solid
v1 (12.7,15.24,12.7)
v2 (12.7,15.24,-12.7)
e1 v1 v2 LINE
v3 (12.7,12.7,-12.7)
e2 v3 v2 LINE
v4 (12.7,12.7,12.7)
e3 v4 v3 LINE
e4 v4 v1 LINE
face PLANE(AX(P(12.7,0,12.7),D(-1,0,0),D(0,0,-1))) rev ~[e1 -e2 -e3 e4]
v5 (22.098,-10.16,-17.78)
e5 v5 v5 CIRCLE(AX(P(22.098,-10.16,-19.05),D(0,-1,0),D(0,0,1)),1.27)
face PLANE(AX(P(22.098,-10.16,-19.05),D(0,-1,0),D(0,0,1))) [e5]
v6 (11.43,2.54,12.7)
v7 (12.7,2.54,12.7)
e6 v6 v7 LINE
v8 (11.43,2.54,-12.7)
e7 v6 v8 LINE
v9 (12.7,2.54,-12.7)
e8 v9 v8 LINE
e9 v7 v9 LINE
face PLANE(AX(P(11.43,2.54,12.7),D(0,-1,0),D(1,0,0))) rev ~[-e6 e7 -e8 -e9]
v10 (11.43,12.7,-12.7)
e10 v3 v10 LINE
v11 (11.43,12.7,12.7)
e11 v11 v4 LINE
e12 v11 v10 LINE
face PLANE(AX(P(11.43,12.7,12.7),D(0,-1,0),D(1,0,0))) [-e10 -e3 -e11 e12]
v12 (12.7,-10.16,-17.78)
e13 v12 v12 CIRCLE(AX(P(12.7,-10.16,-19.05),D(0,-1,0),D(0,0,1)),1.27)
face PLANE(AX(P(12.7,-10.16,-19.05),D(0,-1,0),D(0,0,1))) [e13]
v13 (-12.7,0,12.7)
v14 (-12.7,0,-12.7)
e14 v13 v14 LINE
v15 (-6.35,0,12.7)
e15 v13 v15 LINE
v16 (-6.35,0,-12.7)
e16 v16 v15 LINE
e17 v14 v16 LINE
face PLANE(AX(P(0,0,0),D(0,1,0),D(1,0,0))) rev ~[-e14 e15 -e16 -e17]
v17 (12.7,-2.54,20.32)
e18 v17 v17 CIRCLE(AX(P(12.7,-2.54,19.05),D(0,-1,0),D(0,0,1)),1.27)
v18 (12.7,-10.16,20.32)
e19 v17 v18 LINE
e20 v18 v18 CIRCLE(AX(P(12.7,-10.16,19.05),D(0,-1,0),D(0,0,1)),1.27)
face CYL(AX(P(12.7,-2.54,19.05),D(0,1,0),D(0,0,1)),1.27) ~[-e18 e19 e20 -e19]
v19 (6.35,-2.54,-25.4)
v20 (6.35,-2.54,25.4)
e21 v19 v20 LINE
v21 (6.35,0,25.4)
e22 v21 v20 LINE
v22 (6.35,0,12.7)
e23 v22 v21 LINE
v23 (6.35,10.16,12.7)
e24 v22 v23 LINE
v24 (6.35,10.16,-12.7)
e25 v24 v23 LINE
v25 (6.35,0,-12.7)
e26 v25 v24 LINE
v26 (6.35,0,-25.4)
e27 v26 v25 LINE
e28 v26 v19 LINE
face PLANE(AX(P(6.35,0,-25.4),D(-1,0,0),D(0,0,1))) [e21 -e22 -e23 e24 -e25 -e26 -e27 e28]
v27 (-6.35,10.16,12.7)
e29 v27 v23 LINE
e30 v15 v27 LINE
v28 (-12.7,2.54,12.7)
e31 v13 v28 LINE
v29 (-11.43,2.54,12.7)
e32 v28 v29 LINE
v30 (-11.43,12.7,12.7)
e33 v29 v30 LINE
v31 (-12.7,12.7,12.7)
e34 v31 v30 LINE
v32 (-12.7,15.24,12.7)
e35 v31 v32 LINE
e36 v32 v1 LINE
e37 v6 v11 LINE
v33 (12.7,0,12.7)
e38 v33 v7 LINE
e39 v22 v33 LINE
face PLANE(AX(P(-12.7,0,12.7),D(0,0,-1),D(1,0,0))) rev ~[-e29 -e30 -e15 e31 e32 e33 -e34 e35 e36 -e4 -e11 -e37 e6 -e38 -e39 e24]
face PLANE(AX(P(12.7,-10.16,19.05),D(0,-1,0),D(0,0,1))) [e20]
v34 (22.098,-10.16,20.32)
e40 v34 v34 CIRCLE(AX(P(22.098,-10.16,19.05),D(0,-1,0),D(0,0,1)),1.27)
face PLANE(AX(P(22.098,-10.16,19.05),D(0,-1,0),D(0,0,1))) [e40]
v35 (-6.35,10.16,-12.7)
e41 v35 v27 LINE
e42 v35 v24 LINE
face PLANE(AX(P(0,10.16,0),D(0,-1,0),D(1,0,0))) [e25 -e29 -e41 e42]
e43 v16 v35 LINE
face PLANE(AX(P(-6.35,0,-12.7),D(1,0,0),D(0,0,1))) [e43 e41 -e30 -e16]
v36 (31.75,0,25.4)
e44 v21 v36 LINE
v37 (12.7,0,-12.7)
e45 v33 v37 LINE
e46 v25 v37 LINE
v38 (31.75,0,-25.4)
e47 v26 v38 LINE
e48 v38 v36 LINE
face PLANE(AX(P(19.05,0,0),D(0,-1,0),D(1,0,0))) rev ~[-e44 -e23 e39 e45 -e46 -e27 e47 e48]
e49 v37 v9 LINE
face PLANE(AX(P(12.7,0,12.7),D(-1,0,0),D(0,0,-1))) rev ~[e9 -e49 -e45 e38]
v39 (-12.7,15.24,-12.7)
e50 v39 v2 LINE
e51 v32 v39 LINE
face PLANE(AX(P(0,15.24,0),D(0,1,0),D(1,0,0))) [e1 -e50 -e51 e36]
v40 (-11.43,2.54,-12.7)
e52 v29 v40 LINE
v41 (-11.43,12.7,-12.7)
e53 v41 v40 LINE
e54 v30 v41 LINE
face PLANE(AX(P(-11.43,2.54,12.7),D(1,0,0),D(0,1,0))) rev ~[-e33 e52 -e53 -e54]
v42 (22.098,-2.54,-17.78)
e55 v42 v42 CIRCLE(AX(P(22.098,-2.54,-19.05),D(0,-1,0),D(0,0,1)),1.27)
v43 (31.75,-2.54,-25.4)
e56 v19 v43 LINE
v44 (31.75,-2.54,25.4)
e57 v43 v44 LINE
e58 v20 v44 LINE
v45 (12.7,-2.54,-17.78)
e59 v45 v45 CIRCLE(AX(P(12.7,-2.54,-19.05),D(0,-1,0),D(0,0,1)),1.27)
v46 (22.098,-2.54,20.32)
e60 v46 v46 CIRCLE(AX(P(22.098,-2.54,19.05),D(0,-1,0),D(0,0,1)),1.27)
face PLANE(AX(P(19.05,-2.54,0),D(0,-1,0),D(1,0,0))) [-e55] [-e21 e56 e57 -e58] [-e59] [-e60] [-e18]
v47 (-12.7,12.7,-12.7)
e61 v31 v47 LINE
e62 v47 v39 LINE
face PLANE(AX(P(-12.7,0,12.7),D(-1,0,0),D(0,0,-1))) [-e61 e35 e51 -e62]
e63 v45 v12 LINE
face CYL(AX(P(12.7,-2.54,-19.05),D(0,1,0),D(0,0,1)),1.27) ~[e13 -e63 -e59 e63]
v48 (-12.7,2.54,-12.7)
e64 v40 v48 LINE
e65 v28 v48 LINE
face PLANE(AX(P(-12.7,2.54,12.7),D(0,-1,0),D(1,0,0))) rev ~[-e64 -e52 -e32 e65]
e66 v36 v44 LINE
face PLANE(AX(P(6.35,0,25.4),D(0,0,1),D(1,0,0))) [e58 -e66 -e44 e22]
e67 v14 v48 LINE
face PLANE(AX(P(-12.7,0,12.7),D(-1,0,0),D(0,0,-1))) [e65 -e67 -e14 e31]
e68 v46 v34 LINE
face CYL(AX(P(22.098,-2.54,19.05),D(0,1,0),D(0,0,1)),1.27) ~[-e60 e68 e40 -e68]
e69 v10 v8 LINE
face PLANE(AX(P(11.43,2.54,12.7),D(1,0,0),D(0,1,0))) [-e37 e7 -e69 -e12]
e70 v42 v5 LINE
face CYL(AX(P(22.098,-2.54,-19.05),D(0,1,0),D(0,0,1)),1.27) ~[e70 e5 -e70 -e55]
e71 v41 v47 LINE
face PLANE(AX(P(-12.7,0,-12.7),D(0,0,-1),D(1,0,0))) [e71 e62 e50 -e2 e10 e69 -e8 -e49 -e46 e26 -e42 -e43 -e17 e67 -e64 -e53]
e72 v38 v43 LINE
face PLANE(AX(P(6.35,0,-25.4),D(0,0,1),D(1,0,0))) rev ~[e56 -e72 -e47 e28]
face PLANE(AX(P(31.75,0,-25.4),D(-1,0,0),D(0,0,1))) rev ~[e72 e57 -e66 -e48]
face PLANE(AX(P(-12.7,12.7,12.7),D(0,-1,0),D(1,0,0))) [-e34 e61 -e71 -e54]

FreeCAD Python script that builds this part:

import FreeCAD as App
import Part
import Sketcher
Q = App.Units.Quantity

doc = App.newDocument("Part")
body = doc.addObject("PartDesign::Body", "Body")

# Sketch on XZ plane
sketch1 = body.newObject("Sketcher::SketchObject", "Sketch")
sketch1.AttachmentSupport = (doc.getObject("XZ_Plane"), [""])
sketch1.MapMode = "FlatFace"
sketch1.addGeometry([
    Part.LineSegment(App.Vector(-13, -13, 0), App.Vector(-13, 13, 0)),
    Part.LineSegment(App.Vector(-13, 13, 0), App.Vector(13, 13, 0)),
    Part.LineSegment(App.Vector(13, 13, 0), App.Vector(13, -13, 0)),
    Part.LineSegment(App.Vector(13, -13, 0), App.Vector(-13, -13, 0)),
], False)
sketch1.addConstraint([
    Sketcher.Constraint("Coincident", 0, 2, 1, 1),
    Sketcher.Constraint("Coincident", 1, 2, 2, 1),
    Sketcher.Constraint("Coincident", 2, 2, 3, 1),
    Sketcher.Constraint("Coincident", 3, 2, 0, 1),
    Sketcher.Constraint("Vertical", 0),
    Sketcher.Constraint("Horizontal", 1),
    Sketcher.Constraint("Vertical", 2),
    Sketcher.Constraint("Horizontal", 3),
    Sketcher.Constraint("Symmetric", 0, 2, 2, 2, -1, 1),
    Sketcher.Constraint("Equal", 3, 0),
    Sketcher.Constraint("DistanceX", 1, 1, 1, 2, Q("1 in")),
])
pad1 = body.newObject("PartDesign::Pad", "Pad")
pad1.Profile = sketch1
pad1.Length = Q("0.6 in")
pad1.Reversed = True

# Sketch on XZ plane
sketch2 = body.newObject("Sketcher::SketchObject", "Sketch001")
sketch2.AttachmentSupport = (doc.getObject("XZ_Plane"), [""])
sketch2.MapMode = "FlatFace"
sketch2.addGeometry([
    Part.LineSegment(App.Vector(-6, 13, 0), App.Vector(-6, -13, 0)),
    Part.LineSegment(App.Vector(-6, -13, 0), App.Vector(6, -13, 0)),
    Part.LineSegment(App.Vector(6, -13, 0), App.Vector(6, 13, 0)),
    Part.LineSegment(App.Vector(6, 13, 0), App.Vector(-6, 13, 0)),
], False)
sketch2.addConstraint([
    Sketcher.Constraint("Coincident", 0, 2, 1, 1),
    Sketcher.Constraint("Coincident", 1, 2, 2, 1),
    Sketcher.Constraint("Coincident", 2, 2, 3, 1),
    Sketcher.Constraint("Coincident", 3, 2, 0, 1),
    Sketcher.Constraint("Vertical", 0),
    Sketcher.Constraint("Horizontal", 1),
    Sketcher.Constraint("Vertical", 2),
    Sketcher.Constraint("Horizontal", 3),
    Sketcher.Constraint("Symmetric", 0, 2, 2, 2, -1, 1),
    Sketcher.Constraint("DistanceY", 0, 2, 0, 1, Q("1 in")),
    Sketcher.Constraint("DistanceX", 1, 1, 1, 2, Q("0.5 in")),
])
pocket1 = body.newObject("PartDesign::Pocket", "Pocket")
pocket1.Profile = sketch2
pocket1.Length = Q("0.4 in")

# Sketch on XY plane
sketch3 = body.newObject("Sketcher::SketchObject", "Sketch002")
sketch3.AttachmentSupport = (doc.getObject("XY_Plane"), [""])
sketch3.MapMode = "FlatFace"
sketch3.AttachmentOffset = App.Placement(App.Vector(0, 0, 0.5 * 25.4), App.Rotation())
sketch3.addGeometry([
    Part.LineSegment(App.Vector(-12.7, 12.7, 0), App.Vector(-12.7, 2.5, 0)),  # 0
    Part.LineSegment(App.Vector(-12.7, 2.5, 0), App.Vector(-11.4, 2.5, 0)),  # 1
    Part.LineSegment(App.Vector(-11.4, 2.5, 0), App.Vector(-11.4, 12.7, 0)),  # 2
    Part.LineSegment(App.Vector(-11.4, 12.7, 0), App.Vector(-12.7, 12.7, 0)),  # 3
    Part.LineSegment(App.Vector(11.4, 12.7, 0), App.Vector(11.4, 2.5, 0)),  # 4
    Part.LineSegment(App.Vector(11.4, 2.5, 0), App.Vector(12.7, 2.5, 0)),  # 5
    Part.LineSegment(App.Vector(12.7, 2.5, 0), App.Vector(12.7, 12.7, 0)),  # 6
    Part.LineSegment(App.Vector(12.7, 12.7, 0), App.Vector(11.4, 12.7, 0)),  # 7
], False)
sketch3.addConstraint([
    Sketcher.Constraint("Coincident", 0, 2, 1, 1),
    Sketcher.Constraint("Coincident", 1, 2, 2, 1),
    Sketcher.Constraint("Coincident", 2, 2, 3, 1),
    Sketcher.Constraint("Coincident", 3, 2, 0, 1),
    Sketcher.Constraint("Coincident", 4, 2, 5, 1),
    Sketcher.Constraint("Coincident", 5, 2, 6, 1),
    Sketcher.Constraint("Coincident", 6, 2, 7, 1),
    Sketcher.Constraint("Coincident", 7, 2, 4, 1),
    Sketcher.Constraint("Vertical", 0),
    Sketcher.Constraint("Horizontal", 1),
    Sketcher.Constraint("Vertical", 2),
    Sketcher.Constraint("Horizontal", 3),
    Sketcher.Constraint("Vertical", 4),
    Sketcher.Constraint("Horizontal", 5),
    Sketcher.Constraint("Vertical", 6),
    Sketcher.Constraint("Horizontal", 7),
    Sketcher.Constraint("Symmetric", 1, 2, 4, 2, -2),
    Sketcher.Constraint("Symmetric", 3, 2, 6, 2, -2),
    Sketcher.Constraint("DistanceY", 0, 2, 0, 1, Q("0.4 in")),
    Sketcher.Constraint("DistanceX", 0, 2, 5, 2, Q("1 in")),
    Sketcher.Constraint("DistanceX", 1, 1, 1, 2, Q("0.05 in")),
    Sketcher.Constraint("DistanceY", -1, 1, 0, 2, Q("0.1 in")),
])
pocket2 = body.newObject("PartDesign::Pocket", "Pocket001")
pocket2.Profile = sketch3
pocket2.Type = "ThroughAll"

# Sketch on XZ plane
sketch4 = body.newObject("Sketcher::SketchObject", "Sketch003")
sketch4.AttachmentSupport = (doc.getObject("XZ_Plane"), [""])
sketch4.MapMode = "FlatFace"
sketch4.addGeometry([
    Part.LineSegment(App.Vector(6, 25, 0), App.Vector(6, -25, 0)),
    Part.LineSegment(App.Vector(6, -25, 0), App.Vector(32, -25, 0)),
    Part.LineSegment(App.Vector(32, -25, 0), App.Vector(32, 25, 0)),
    Part.LineSegment(App.Vector(32, 25, 0), App.Vector(6, 25, 0)),
], False)
sketch4.addConstraint([
    Sketcher.Constraint("Coincident", 0, 2, 1, 1),
    Sketcher.Constraint("Coincident", 1, 2, 2, 1),
    Sketcher.Constraint("Coincident", 2, 2, 3, 1),
    Sketcher.Constraint("Coincident", 3, 2, 0, 1),
    Sketcher.Constraint("Vertical", 0),
    Sketcher.Constraint("Horizontal", 1),
    Sketcher.Constraint("Vertical", 2),
    Sketcher.Constraint("Horizontal", 3),
    Sketcher.Constraint("DistanceX", 1, 1, 1, 2, Q("1 in")),
    Sketcher.Constraint("DistanceY", 0, 2, 0, 1, Q("2 in")),
    Sketcher.Constraint("DistanceY", 0, 2, -1, 1, Q("1 in")),
    Sketcher.Constraint("DistanceX", -1, 1, 0, 2, Q("0.25 in")),
])
pad2 = body.newObject("PartDesign::Pad", "Pad001")
pad2.Profile = sketch4
pad2.Length = Q("0.1 in")

# Sketch on XZ plane
sketch5 = body.newObject("Sketcher::SketchObject", "Sketch004")
sketch5.AttachmentSupport = (doc.getObject("XZ_Plane"), [""])
sketch5.MapMode = "FlatFace"
sketch5.AttachmentOffset = App.Placement(App.Vector(0, 0, 0.1 * 25.4), App.Rotation())
sketch5.addGeometry([
    Part.Circle(App.Vector(12.7, 19.1, 0), App.Vector(0, 0, 1), 1.3),
    Part.Circle(App.Vector(22.1, 19.1, 0), App.Vector(0, 0, 1), 1.3),
    Part.Circle(App.Vector(12.7, -19.1, 0), App.Vector(0, 0, 1), 1.3),
    Part.Circle(App.Vector(22.1, -19.1, 0), App.Vector(0, 0, 1), 1.3),
], False)
sketch5.addConstraint([
    Sketcher.Constraint("Equal", 0, 1),
    Sketcher.Constraint("Equal", 1, 2),
    Sketcher.Constraint("Equal", 2, 3),
    Sketcher.Constraint("Symmetric", 0, 3, 2, 3, -1),
    Sketcher.Constraint("Symmetric", 1, 3, 3, 3, -1),
    Sketcher.Constraint("Horizontal", 0, 3, 1, 3),
    Sketcher.Constraint("Diameter", 0, Q("0.1 in")),
    Sketcher.Constraint("DistanceX", -1, 1, 0, 3, Q("0.5 in")),
    Sketcher.Constraint("DistanceY", 2, 3, 0, 3, Q("1.5 in")),
    Sketcher.Constraint("DistanceX", -1, 1, 1, 3, Q("0.87 in")),
])
pad3 = body.newObject("PartDesign::Pad", "Pad002")
pad3.Profile = sketch5
pad3.Length = Q("0.3 in")

doc.recompute()
